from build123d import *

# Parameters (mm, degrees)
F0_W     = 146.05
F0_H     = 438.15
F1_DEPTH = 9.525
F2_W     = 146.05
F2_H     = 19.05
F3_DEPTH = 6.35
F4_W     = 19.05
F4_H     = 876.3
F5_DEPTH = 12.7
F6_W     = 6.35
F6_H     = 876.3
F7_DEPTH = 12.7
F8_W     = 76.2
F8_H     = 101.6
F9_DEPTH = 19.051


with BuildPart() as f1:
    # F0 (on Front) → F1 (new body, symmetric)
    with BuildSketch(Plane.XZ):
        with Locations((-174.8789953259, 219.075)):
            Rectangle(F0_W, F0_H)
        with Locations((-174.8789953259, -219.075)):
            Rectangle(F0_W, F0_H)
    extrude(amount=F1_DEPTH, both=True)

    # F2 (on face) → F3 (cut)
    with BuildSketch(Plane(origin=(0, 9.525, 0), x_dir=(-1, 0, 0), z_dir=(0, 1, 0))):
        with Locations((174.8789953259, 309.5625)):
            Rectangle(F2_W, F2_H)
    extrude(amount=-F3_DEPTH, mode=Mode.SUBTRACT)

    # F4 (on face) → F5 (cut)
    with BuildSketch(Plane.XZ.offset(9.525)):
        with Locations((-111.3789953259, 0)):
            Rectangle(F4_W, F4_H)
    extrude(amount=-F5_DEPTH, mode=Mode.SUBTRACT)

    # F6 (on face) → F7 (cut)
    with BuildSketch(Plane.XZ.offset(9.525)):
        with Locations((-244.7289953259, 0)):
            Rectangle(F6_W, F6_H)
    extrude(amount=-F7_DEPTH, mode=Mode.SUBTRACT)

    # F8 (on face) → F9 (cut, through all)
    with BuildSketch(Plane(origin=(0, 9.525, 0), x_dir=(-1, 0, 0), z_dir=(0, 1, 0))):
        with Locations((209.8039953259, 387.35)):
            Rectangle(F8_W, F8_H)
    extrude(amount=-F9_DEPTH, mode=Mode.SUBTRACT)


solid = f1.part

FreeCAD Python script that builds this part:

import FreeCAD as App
import Part
import Sketcher
Q = App.Units.Quantity


def add_polygon(sketch, points):
    """Adds a closed chain of lines whose ends are joined by coincident constraints."""
    first, n = sketch.GeometryCount, len(points)
    for a, b in zip(points, points[1:] + points[:1]):
        sketch.addGeometry(Part.LineSegment(App.Vector(*a, 0), App.Vector(*b, 0)), False)
    for i in range(n):
        sketch.addConstraint(Sketcher.Constraint("Coincident", first + i, 2, first + (i + 1) % n, 1))

doc = App.newDocument("Part")
body = doc.addObject("PartDesign::Body", "Body")

sketch1 = doc.addObject("Sketcher::SketchObject", "Sketch")
body.addObject(sketch1)
sketch1.AttachmentSupport = (doc.XZ_Plane, [""])
sketch1.MapMode = "FlatFace"
add_polygon(sketch1, [(-247.903995, 438.15), (-247.903995, -438.15), (-101.853995, -438.15), (-101.853995, 438.15)])
sketch1.addConstraint([
    Sketcher.Constraint("Vertical", 0),
    Sketcher.Constraint("Horizontal", 1),
    Sketcher.Constraint("Vertical", 2),
    Sketcher.Constraint("Horizontal", 3),
    Sketcher.Constraint("DistanceY", 0, 2, 0, 1, Q("34.5 in")),
    Sketcher.Constraint("DistanceX", 1, 1, 1, 2, Q("5.75 in")),
    Sketcher.Constraint("DistanceX", 0, 2, -1, 1, Q("9.7599998 in")),
    Sketcher.Constraint("DistanceY", 0, 2, -1, 1, Q("17.25 in")),
])
pad1 = doc.addObject("PartDesign::Pad", "Pad")
body.addObject(pad1)
pad1.Profile = sketch1
pad1.Length = Q("0.75 in")
pad1.Midplane = True

sketch2 = doc.addObject("Sketcher::SketchObject", "Sketch001")
body.addObject(sketch2)
sketch2.AttachmentSupport = (doc.XZ_Plane, [""])
sketch2.MapMode = "FlatFace"
sketch2.AttachmentOffset = App.Placement(App.Vector(0, 0, -0.375 * 25.4), App.Rotation())
add_polygon(sketch2, [(-101.853995, 319.0875), (-101.853995, 300.0375), (-247.903995, 300.0375), (-247.903995, 319.0875)])
sketch2.addConstraint([
    Sketcher.Constraint("Vertical", 0),
    Sketcher.Constraint("Horizontal", 1),
    Sketcher.Constraint("Vertical", 2),
    Sketcher.Constraint("Horizontal", 3),
    Sketcher.Constraint("DistanceX", 1, 2, 1, 1, Q("5.75 in")),
    Sketcher.Constraint("DistanceY", 0, 2, 0, 1, Q("0.75 in")),
    Sketcher.Constraint("DistanceX", 0, 2, -1, 1, Q("4.0099998 in")),
    Sketcher.Constraint("DistanceY", -1, 1, 0, 2, Q("11.8125 in")),
])
pocket1 = doc.addObject("PartDesign::Pocket", "Pocket")
body.addObject(pocket1)
pocket1.Profile = sketch2
pocket1.Length = Q("0.25 in")
pocket1.Reversed = True

sketch3 = doc.addObject("Sketcher::SketchObject", "Sketch002")
body.addObject(sketch3)
sketch3.AttachmentSupport = (doc.XZ_Plane, [""])
sketch3.MapMode = "FlatFace"
sketch3.AttachmentOffset = App.Placement(App.Vector(0, 0, 0.375 * 25.4), App.Rotation())
add_polygon(sketch3, [(-120.903995, 438.15), (-120.903995, -438.15), (-101.853995, -438.15), (-101.853995, 438.15)])
sketch3.addConstraint([
    Sketcher.Constraint("Vertical", 0),
    Sketcher.Constraint("Horizontal", 1),
    Sketcher.Constraint("Vertical", 2),
    Sketcher.Constraint("Horizontal", 3),
    Sketcher.Constraint("DistanceY", 0, 2, 0, 1, Q("34.5 in")),
    Sketcher.Constraint("DistanceX", 1, 1, 1, 2, Q("0.75 in")),
    Sketcher.Constraint("DistanceX", 0, 2, -1, 1, Q("4.7599998 in")),
    Sketcher.Constraint("DistanceY", 0, 2, -1, 1, Q("17.25 in")),
])
pocket2 = doc.addObject("PartDesign::Pocket", "Pocket001")
body.addObject(pocket2)
pocket2.Profile = sketch3
pocket2.Length = Q("0.5 in")

sketch4 = doc.addObject("Sketcher::SketchObject", "Sketch003")
body.addObject(sketch4)
sketch4.AttachmentSupport = (doc.XZ_Plane, [""])
sketch4.MapMode = "FlatFace"
sketch4.AttachmentOffset = App.Placement(App.Vector(0, 0, 0.375 * 25.4), App.Rotation())
add_polygon(sketch4, [(-247.903995, 438.15), (-247.903995, -438.15), (-241.553995, -438.15), (-241.553995, 438.15)])
sketch4.addConstraint([
    Sketcher.Constraint("Vertical", 0),
    Sketcher.Constraint("Horizontal", 1),
    Sketcher.Constraint("Vertical", 2),
    Sketcher.Constraint("Horizontal", 3),
    Sketcher.Constraint("DistanceY", 0, 2, 0, 1, Q("34.5 in")),
    Sketcher.Constraint("DistanceX", 1, 1, 1, 2, Q("0.25 in")),
    Sketcher.Constraint("DistanceX", 0, 2, -1, 1, Q("9.7599998 in")),
    Sketcher.Constraint("DistanceY", 0, 2, -1, 1, Q("17.25 in")),
])
pocket3 = doc.addObject("PartDesign::Pocket", "Pocket002")
body.addObject(pocket3)
pocket3.Profile = sketch4
pocket3.Length = Q("0.5 in")

sketch5 = doc.addObject("Sketcher::SketchObject", "Sketch004")
body.addObject(sketch5)
sketch5.AttachmentSupport = (doc.XZ_Plane, [""])
sketch5.MapMode = "FlatFace"
sketch5.AttachmentOffset = App.Placement(App.Vector(0, 0, -0.375 * 25.4), App.Rotation())
add_polygon(sketch5, [(-171.703995, 438.15), (-171.703995, 336.55), (-247.903995, 336.55), (-247.903995, 438.15)])
sketch5.addConstraint([
    Sketcher.Constraint("Vertical", 0),
    Sketcher.Constraint("Horizontal", 1),
    Sketcher.Constraint("Vertical", 2),
    Sketcher.Constraint("Horizontal", 3),
    Sketcher.Constraint("DistanceX", 1, 2, 1, 1, Q("3 in")),
    Sketcher.Constraint("DistanceY", 0, 2, 0, 1, Q("4 in")),
    Sketcher.Constraint("DistanceX", 0, 2, -1, 1, Q("6.7599998 in")),
    Sketcher.Constraint("DistanceY", -1, 1, 0, 2, Q("13.25 in")),
])
pocket4 = doc.addObject("PartDesign::Pocket", "Pocket003")
body.addObject(pocket4)
pocket4.Profile = sketch5
pocket4.Type = "ThroughAll"
pocket4.Reversed = True

doc.recompute()
